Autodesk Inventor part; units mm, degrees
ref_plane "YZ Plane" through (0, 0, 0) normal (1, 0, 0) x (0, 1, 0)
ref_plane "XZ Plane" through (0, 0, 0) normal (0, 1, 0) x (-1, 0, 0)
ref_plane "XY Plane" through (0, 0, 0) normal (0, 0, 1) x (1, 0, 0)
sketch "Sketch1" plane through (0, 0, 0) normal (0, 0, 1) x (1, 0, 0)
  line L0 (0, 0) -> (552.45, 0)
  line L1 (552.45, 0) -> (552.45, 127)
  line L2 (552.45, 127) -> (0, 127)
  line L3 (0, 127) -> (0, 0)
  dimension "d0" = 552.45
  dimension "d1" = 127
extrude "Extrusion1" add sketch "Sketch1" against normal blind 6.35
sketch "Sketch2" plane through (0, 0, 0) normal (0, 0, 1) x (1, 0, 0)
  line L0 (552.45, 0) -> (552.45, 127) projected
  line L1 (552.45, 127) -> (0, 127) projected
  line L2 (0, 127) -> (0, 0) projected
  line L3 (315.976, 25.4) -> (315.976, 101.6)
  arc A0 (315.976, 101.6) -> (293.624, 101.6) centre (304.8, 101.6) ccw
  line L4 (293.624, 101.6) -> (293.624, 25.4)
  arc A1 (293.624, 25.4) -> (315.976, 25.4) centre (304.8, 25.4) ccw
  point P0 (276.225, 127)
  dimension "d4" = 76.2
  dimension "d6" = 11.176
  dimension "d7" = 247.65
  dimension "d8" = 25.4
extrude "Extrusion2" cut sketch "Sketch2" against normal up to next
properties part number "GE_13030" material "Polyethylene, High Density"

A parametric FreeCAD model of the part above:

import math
import FreeCAD as App
import Part
import Sketcher

V = App.Vector
Q = App.Units.Quantity

doc = App.newDocument("Part")
params = doc.addObject("Spreadsheet::Sheet", "Params")
for row, (alias, value) in enumerate([
    ("sketch1_height", "5 in"),
    ("sketch1_width", "21.75 in"),
    ("pad1_length", "0.25 in"),
    ("sketch2_height", "3 in"),
    ("sketch2_radius", "0.44 in"),
], start=1):
    params.set(f"A{row}", alias)
    params.set(f"B{row}", "=" + value)
    params.setAlias(f"B{row}", alias)

body = doc.addObject("PartDesign::Body", "Body")

sketch1 = doc.addObject("Sketcher::SketchObject", "Sketch")
body.addObject(sketch1)
sketch1.AttachmentSupport = (doc.XY_Plane, [""])
sketch1.MapMode = "FlatFace"
sketch1.addGeometry([
    Part.LineSegment(V(0, 127, 0), V(0, 0, 0)),
    Part.LineSegment(V(0, 0, 0), V(552, 0, 0)),
    Part.LineSegment(V(552, 0, 0), V(552, 127, 0)),
    Part.LineSegment(V(552, 127, 0), V(0, 127, 0)),
], False)
sketch1.addConstraint([
    Sketcher.Constraint("Coincident", 0, 2, 1, 1),
    Sketcher.Constraint("Coincident", 1, 2, 2, 1),
    Sketcher.Constraint("Coincident", 2, 2, 3, 1),
    Sketcher.Constraint("Coincident", 3, 2, 0, 1),
    Sketcher.Constraint("Vertical", 0),
    Sketcher.Constraint("Horizontal", 1),
    Sketcher.Constraint("Vertical", 2),
    Sketcher.Constraint("Horizontal", 3),
    Sketcher.Constraint("Coincident", 0, 2, -1, 1),
    Sketcher.Constraint("DistanceY", 0, 2, 0, 1, Q("5 in")),
    Sketcher.Constraint("DistanceX", 1, 1, 1, 2, Q("21.75 in")),
])
sketch1.setExpression("Constraints[9]", "Params.sketch1_height")
sketch1.setExpression("Constraints[10]", "Params.sketch1_width")
pad1 = doc.addObject("PartDesign::Pad", "Pad")
body.addObject(pad1)
pad1.Profile = sketch1
pad1.setExpression("Length", "Params.pad1_length")
pad1.Reversed = True

sketch2 = doc.addObject("Sketcher::SketchObject", "Sketch001")
body.addObject(sketch2)
sketch2.AttachmentSupport = (doc.XY_Plane, [""])
sketch2.MapMode = "FlatFace"
sketch2.addGeometry([
    Part.ArcOfCircle(Part.Circle(V(305, 25, 0), V(0, 0, 1), 11), math.radians(180), math.radians(360)),
    Part.LineSegment(V(316, 25, 0), V(316, 102, 0)),
    Part.ArcOfCircle(Part.Circle(V(305, 102, 0), V(0, 0, 1), 11), math.radians(0), math.radians(180)),
    Part.LineSegment(V(294, 102, 0), V(294, 25, 0)),
], False)
sketch2.addConstraint([
    Sketcher.Constraint("Tangent", 0, 2, 1, 1),
    Sketcher.Constraint("Tangent", 1, 2, 2, 1),
    Sketcher.Constraint("Tangent", 2, 2, 3, 1),
    Sketcher.Constraint("Tangent", 3, 2, 0, 1),
    Sketcher.Constraint("Vertical", 1),
    Sketcher.Constraint("Vertical", 3),
    Sketcher.Constraint("DistanceY", 1, 1, 1, 2, Q("3 in")),
    Sketcher.Constraint("Radius", 0, Q("0.44 in")),
    Sketcher.Constraint("DistanceY", -1, 1, 0, 3, Q("1 in")),
    Sketcher.Constraint("DistanceX", -1, 1, 0, 3, Q("12 in")),
])
sketch2.setExpression("Constraints[6]", "Params.sketch2_height")
sketch2.setExpression("Constraints[7]", "Params.sketch2_radius")
pocket1 = doc.addObject("PartDesign::Pocket", "Pocket")
body.addObject(pocket1)
pocket1.Profile = sketch2
pocket1.Type = "UpToFirst"

doc.recompute()
